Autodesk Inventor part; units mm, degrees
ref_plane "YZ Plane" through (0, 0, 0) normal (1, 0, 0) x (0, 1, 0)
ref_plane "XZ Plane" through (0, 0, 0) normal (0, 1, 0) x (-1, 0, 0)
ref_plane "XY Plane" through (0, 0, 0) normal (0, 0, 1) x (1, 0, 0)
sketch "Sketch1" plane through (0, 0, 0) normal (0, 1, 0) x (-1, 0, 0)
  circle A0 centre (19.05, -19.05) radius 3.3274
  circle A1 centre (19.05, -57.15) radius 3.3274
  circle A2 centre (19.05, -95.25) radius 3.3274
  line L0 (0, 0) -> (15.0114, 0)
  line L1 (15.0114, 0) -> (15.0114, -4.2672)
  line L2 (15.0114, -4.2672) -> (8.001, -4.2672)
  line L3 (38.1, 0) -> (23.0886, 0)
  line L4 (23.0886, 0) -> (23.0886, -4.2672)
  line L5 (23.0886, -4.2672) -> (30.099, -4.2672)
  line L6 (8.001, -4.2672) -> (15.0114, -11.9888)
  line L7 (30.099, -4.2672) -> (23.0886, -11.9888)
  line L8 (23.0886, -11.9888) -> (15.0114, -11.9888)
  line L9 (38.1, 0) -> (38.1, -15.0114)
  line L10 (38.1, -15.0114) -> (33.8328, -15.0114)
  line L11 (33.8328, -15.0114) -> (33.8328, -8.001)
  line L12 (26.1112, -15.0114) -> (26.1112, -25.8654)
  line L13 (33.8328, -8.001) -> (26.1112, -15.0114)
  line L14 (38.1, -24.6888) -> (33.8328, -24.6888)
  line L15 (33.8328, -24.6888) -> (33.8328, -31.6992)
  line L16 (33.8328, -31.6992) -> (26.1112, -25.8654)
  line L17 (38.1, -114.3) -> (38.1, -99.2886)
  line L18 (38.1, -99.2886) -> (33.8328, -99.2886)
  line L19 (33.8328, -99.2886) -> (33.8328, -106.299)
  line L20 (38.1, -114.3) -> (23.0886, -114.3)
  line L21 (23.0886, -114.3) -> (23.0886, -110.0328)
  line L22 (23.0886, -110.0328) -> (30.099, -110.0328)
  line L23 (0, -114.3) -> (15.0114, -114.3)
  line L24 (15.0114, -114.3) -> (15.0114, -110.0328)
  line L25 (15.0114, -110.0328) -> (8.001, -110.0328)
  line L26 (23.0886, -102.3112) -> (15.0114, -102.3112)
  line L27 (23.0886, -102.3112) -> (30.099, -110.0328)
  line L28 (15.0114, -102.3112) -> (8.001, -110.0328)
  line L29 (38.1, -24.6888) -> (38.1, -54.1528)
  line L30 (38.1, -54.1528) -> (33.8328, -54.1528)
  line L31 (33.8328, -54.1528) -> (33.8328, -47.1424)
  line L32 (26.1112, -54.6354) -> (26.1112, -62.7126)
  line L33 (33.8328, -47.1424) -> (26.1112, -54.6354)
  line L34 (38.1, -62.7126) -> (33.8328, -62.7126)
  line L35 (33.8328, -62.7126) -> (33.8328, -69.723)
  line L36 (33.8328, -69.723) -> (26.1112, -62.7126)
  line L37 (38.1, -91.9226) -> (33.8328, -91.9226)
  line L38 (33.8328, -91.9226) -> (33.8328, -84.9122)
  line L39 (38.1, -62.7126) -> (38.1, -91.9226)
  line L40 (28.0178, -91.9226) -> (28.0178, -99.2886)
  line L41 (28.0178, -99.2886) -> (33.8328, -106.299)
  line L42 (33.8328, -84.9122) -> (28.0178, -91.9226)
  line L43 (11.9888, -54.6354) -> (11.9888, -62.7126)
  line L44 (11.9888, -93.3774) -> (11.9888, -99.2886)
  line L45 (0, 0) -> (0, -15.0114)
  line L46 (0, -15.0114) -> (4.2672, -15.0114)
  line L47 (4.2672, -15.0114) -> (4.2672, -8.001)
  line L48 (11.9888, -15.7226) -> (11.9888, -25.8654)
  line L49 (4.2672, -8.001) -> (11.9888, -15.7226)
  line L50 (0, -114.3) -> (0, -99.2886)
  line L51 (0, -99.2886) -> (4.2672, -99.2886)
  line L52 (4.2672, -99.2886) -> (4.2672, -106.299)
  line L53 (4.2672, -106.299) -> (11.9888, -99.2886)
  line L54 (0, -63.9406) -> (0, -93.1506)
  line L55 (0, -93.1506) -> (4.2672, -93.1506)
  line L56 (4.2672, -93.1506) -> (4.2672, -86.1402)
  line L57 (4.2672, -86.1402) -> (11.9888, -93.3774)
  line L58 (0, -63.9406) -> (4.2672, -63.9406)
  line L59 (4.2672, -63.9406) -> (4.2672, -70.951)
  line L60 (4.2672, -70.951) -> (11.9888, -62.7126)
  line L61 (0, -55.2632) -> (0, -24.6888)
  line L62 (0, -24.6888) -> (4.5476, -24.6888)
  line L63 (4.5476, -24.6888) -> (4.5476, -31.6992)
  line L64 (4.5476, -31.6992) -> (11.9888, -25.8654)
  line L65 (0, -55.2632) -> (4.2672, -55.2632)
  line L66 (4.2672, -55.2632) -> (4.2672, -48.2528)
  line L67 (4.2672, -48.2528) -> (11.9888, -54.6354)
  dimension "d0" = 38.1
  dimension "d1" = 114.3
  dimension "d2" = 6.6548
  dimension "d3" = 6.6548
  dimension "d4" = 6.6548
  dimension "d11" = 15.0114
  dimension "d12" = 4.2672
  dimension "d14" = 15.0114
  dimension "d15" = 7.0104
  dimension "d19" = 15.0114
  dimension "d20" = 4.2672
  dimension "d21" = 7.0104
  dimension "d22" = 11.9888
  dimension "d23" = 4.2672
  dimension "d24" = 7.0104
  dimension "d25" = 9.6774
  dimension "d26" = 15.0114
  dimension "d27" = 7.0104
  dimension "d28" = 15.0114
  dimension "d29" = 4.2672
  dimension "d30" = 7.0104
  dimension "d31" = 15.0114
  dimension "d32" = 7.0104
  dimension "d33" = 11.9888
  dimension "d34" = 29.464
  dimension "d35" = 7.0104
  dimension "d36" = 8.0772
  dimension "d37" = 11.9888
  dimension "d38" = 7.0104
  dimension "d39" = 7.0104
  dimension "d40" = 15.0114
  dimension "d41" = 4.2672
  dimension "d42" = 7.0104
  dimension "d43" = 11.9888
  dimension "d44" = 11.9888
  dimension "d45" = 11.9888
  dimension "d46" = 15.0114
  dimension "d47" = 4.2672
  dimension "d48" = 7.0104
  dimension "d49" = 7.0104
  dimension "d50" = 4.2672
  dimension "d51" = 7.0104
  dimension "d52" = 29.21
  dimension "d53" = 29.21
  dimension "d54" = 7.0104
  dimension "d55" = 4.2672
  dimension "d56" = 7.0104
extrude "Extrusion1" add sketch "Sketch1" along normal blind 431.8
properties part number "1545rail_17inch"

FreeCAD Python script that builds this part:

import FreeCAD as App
import Part
import Sketcher
Q = App.Units.Quantity

doc = App.newDocument("Part")
body = doc.addObject("PartDesign::Body", "Body")

# Sketch on XZ plane
sketch1 = body.newObject("Sketcher::SketchObject", "Sketch")
sketch1.AttachmentSupport = (doc.getObject("XZ_Plane"), [""])
sketch1.MapMode = "FlatFace"
sketch1.addGeometry(Part.LineSegment(App.Vector(-15, 0, 0), App.Vector(0, 0, 0)), False)
sketch1.addGeometry(Part.LineSegment(App.Vector(0, 0, 0), App.Vector(0, -15, 0)), False)
sketch1.addGeometry(Part.LineSegment(App.Vector(0, -15, 0), App.Vector(-4.3, -15, 0)), False)
sketch1.addGeometry(Part.LineSegment(App.Vector(-4.3, -15, 0), App.Vector(-4.3, -8, 0)), False)
sketch1.addGeometry(Part.LineSegment(App.Vector(-4.3, -8, 0), App.Vector(-12, -15.7, 0)), False)
sketch1.addGeometry(Part.LineSegment(App.Vector(-12, -15.7, 0), App.Vector(-12, -25.9, 0)), False)
sketch1.addGeometry(Part.LineSegment(App.Vector(-12, -25.9, 0), App.Vector(-4.5, -31.7, 0)), False)
sketch1.addGeometry(Part.LineSegment(App.Vector(-4.5, -31.7, 0), App.Vector(-4.5, -24.7, 0)), False)
sketch1.addGeometry(Part.LineSegment(App.Vector(-4.5, -24.7, 0), App.Vector(0, -24.7, 0)), False)
sketch1.addGeometry(Part.LineSegment(App.Vector(0, -24.7, 0), App.Vector(0, -55.3, 0)), False)
sketch1.addGeometry(Part.LineSegment(App.Vector(0, -55.3, 0), App.Vector(-4.3, -55.3, 0)), False)
sketch1.addGeometry(Part.LineSegment(App.Vector(-4.3, -55.3, 0), App.Vector(-4.3, -48.3, 0)), False)
sketch1.addGeometry(Part.LineSegment(App.Vector(-4.3, -48.3, 0), App.Vector(-12, -54.6, 0)), False)
sketch1.addGeometry(Part.LineSegment(App.Vector(-12, -54.6, 0), App.Vector(-12, -62.7, 0)), False)
sketch1.addGeometry(Part.LineSegment(App.Vector(-12, -62.7, 0), App.Vector(-4.3, -71, 0)), False)
sketch1.addGeometry(Part.LineSegment(App.Vector(-4.3, -71, 0), App.Vector(-4.3, -63.9, 0)), False)
sketch1.addGeometry(Part.LineSegment(App.Vector(-4.3, -63.9, 0), App.Vector(0, -63.9, 0)), False)
sketch1.addGeometry(Part.LineSegment(App.Vector(0, -63.9, 0), App.Vector(0, -93.2, 0)), False)
sketch1.addGeometry(Part.LineSegment(App.Vector(0, -93.2, 0), App.Vector(-4.3, -93.2, 0)), False)
sketch1.addGeometry(Part.LineSegment(App.Vector(-4.3, -93.2, 0), App.Vector(-4.3, -86.1, 0)), False)
sketch1.addGeometry(Part.LineSegment(App.Vector(-4.3, -86.1, 0), App.Vector(-12, -93.4, 0)), False)
sketch1.addGeometry(Part.LineSegment(App.Vector(-12, -93.4, 0), App.Vector(-12, -99.3, 0)), False)
sketch1.addGeometry(Part.LineSegment(App.Vector(-12, -99.3, 0), App.Vector(-4.3, -106.3, 0)), False)
sketch1.addGeometry(Part.LineSegment(App.Vector(-4.3, -106.3, 0), App.Vector(-4.3, -99.3, 0)), False)
sketch1.addGeometry(Part.LineSegment(App.Vector(-4.3, -99.3, 0), App.Vector(0, -99.3, 0)), False)
sketch1.addGeometry(Part.LineSegment(App.Vector(0, -99.3, 0), App.Vector(0, -114.3, 0)), False)
sketch1.addGeometry(Part.LineSegment(App.Vector(0, -114.3, 0), App.Vector(-15, -114.3, 0)), False)
sketch1.addGeometry(Part.LineSegment(App.Vector(-15, -114.3, 0), App.Vector(-15, -110, 0)), False)
sketch1.addGeometry(Part.LineSegment(App.Vector(-15, -110, 0), App.Vector(-8, -110, 0)), False)
sketch1.addGeometry(Part.LineSegment(App.Vector(-8, -110, 0), App.Vector(-15, -102.3, 0)), False)
sketch1.addGeometry(Part.LineSegment(App.Vector(-15, -102.3, 0), App.Vector(-23.1, -102.3, 0)), False)
sketch1.addGeometry(Part.LineSegment(App.Vector(-23.1, -102.3, 0), App.Vector(-30.1, -110, 0)), False)
sketch1.addGeometry(Part.LineSegment(App.Vector(-30.1, -110, 0), App.Vector(-23.1, -110, 0)), False)
sketch1.addGeometry(Part.LineSegment(App.Vector(-23.1, -110, 0), App.Vector(-23.1, -114.3, 0)), False)
sketch1.addGeometry(Part.LineSegment(App.Vector(-23.1, -114.3, 0), App.Vector(-38.1, -114.3, 0)), False)
sketch1.addGeometry(Part.LineSegment(App.Vector(-38.1, -114.3, 0), App.Vector(-38.1, -99.3, 0)), False)
sketch1.addGeometry(Part.LineSegment(App.Vector(-38.1, -99.3, 0), App.Vector(-33.8, -99.3, 0)), False)
sketch1.addGeometry(Part.LineSegment(App.Vector(-33.8, -99.3, 0), App.Vector(-33.8, -106.3, 0)), False)
sketch1.addGeometry(Part.LineSegment(App.Vector(-33.8, -106.3, 0), App.Vector(-28, -99.3, 0)), False)
sketch1.addGeometry(Part.LineSegment(App.Vector(-28, -99.3, 0), App.Vector(-28, -91.9, 0)), False)
sketch1.addGeometry(Part.LineSegment(App.Vector(-28, -91.9, 0), App.Vector(-33.8, -84.9, 0)), False)
sketch1.addGeometry(Part.LineSegment(App.Vector(-33.8, -84.9, 0), App.Vector(-33.8, -91.9, 0)), False)
sketch1.addGeometry(Part.LineSegment(App.Vector(-33.8, -91.9, 0), App.Vector(-38.1, -91.9, 0)), False)
sketch1.addGeometry(Part.LineSegment(App.Vector(-38.1, -91.9, 0), App.Vector(-38.1, -62.7, 0)), False)
sketch1.addGeometry(Part.LineSegment(App.Vector(-38.1, -62.7, 0), App.Vector(-33.8, -62.7, 0)), False)
sketch1.addGeometry(Part.LineSegment(App.Vector(-33.8, -62.7, 0), App.Vector(-33.8, -69.7, 0)), False)
sketch1.addGeometry(Part.LineSegment(App.Vector(-33.8, -69.7, 0), App.Vector(-26.1, -62.7, 0)), False)
sketch1.addGeometry(Part.LineSegment(App.Vector(-26.1, -62.7, 0), App.Vector(-26.1, -54.6, 0)), False)
sketch1.addGeometry(Part.LineSegment(App.Vector(-26.1, -54.6, 0), App.Vector(-33.8, -47.1, 0)), False)
sketch1.addGeometry(Part.LineSegment(App.Vector(-33.8, -47.1, 0), App.Vector(-33.8, -54.2, 0)), False)
sketch1.addGeometry(Part.LineSegment(App.Vector(-33.8, -54.2, 0), App.Vector(-38.1, -54.2, 0)), False)
sketch1.addGeometry(Part.LineSegment(App.Vector(-38.1, -54.2, 0), App.Vector(-38.1, -24.7, 0)), False)
sketch1.addGeometry(Part.LineSegment(App.Vector(-38.1, -24.7, 0), App.Vector(-33.8, -24.7, 0)), False)
sketch1.addGeometry(Part.LineSegment(App.Vector(-33.8, -24.7, 0), App.Vector(-33.8, -31.7, 0)), False)
sketch1.addGeometry(Part.LineSegment(App.Vector(-33.8, -31.7, 0), App.Vector(-26.1, -25.9, 0)), False)
sketch1.addGeometry(Part.LineSegment(App.Vector(-26.1, -25.9, 0), App.Vector(-26.1, -15, 0)), False)
sketch1.addGeometry(Part.LineSegment(App.Vector(-26.1, -15, 0), App.Vector(-33.8, -8, 0)), False)
sketch1.addGeometry(Part.LineSegment(App.Vector(-33.8, -8, 0), App.Vector(-33.8, -15, 0)), False)
sketch1.addGeometry(Part.LineSegment(App.Vector(-33.8, -15, 0), App.Vector(-38.1, -15, 0)), False)
sketch1.addGeometry(Part.LineSegment(App.Vector(-38.1, -15, 0), App.Vector(-38.1, 0, 0)), False)
sketch1.addGeometry(Part.LineSegment(App.Vector(-38.1, 0, 0), App.Vector(-23.1, 0, 0)), False)
sketch1.addGeometry(Part.LineSegment(App.Vector(-23.1, 0, 0), App.Vector(-23.1, -4.3, 0)), False)
sketch1.addGeometry(Part.LineSegment(App.Vector(-23.1, -4.3, 0), App.Vector(-30.1, -4.3, 0)), False)
sketch1.addGeometry(Part.LineSegment(App.Vector(-30.1, -4.3, 0), App.Vector(-23.1, -12, 0)), False)
sketch1.addGeometry(Part.LineSegment(App.Vector(-23.1, -12, 0), App.Vector(-15, -12, 0)), False)
sketch1.addGeometry(Part.LineSegment(App.Vector(-15, -12, 0), App.Vector(-8, -4.3, 0)), False)
sketch1.addGeometry(Part.LineSegment(App.Vector(-8, -4.3, 0), App.Vector(-15, -4.3, 0)), False)
sketch1.addGeometry(Part.LineSegment(App.Vector(-15, -4.3, 0), App.Vector(-15, 0, 0)), False)
sketch1.addGeometry(Part.Circle(App.Vector(-19.1, -95.2, 0), App.Vector(0, 0, 1), 3.3), False)
sketch1.addGeometry(Part.Circle(App.Vector(-19.1, -57.1, 0), App.Vector(0, 0, 1), 3.3), False)
sketch1.addGeometry(Part.Circle(App.Vector(-19.1, -19.1, 0), App.Vector(0, 0, 1), 3.3), False)
sketch1.addConstraint(Sketcher.Constraint("Coincident", 0, 2, 1, 1))
sketch1.addConstraint(Sketcher.Constraint("Coincident", 1, 2, 2, 1))
sketch1.addConstraint(Sketcher.Constraint("Coincident", 2, 2, 3, 1))
sketch1.addConstraint(Sketcher.Constraint("Coincident", 3, 2, 4, 1))
sketch1.addConstraint(Sketcher.Constraint("Coincident", 4, 2, 5, 1))
sketch1.addConstraint(Sketcher.Constraint("Coincident", 5, 2, 6, 1))
sketch1.addConstraint(Sketcher.Constraint("Coincident", 6, 2, 7, 1))
sketch1.addConstraint(Sketcher.Constraint("Coincident", 7, 2, 8, 1))
sketch1.addConstraint(Sketcher.Constraint("Coincident", 8, 2, 9, 1))
sketch1.addConstraint(Sketcher.Constraint("Coincident", 9, 2, 10, 1))
sketch1.addConstraint(Sketcher.Constraint("Coincident", 10, 2, 11, 1))
sketch1.addConstraint(Sketcher.Constraint("Coincident", 11, 2, 12, 1))
sketch1.addConstraint(Sketcher.Constraint("Coincident", 12, 2, 13, 1))
sketch1.addConstraint(Sketcher.Constraint("Coincident", 13, 2, 14, 1))
sketch1.addConstraint(Sketcher.Constraint("Coincident", 14, 2, 15, 1))
sketch1.addConstraint(Sketcher.Constraint("Coincident", 15, 2, 16, 1))
sketch1.addConstraint(Sketcher.Constraint("Coincident", 16, 2, 17, 1))
sketch1.addConstraint(Sketcher.Constraint("Coincident", 17, 2, 18, 1))
sketch1.addConstraint(Sketcher.Constraint("Coincident", 18, 2, 19, 1))
sketch1.addConstraint(Sketcher.Constraint("Coincident", 19, 2, 20, 1))
sketch1.addConstraint(Sketcher.Constraint("Coincident", 20, 2, 21, 1))
sketch1.addConstraint(Sketcher.Constraint("Coincident", 21, 2, 22, 1))
sketch1.addConstraint(Sketcher.Constraint("Coincident", 22, 2, 23, 1))
sketch1.addConstraint(Sketcher.Constraint("Coincident", 23, 2, 24, 1))
sketch1.addConstraint(Sketcher.Constraint("Coincident", 24, 2, 25, 1))
sketch1.addConstraint(Sketcher.Constraint("Coincident", 25, 2, 26, 1))
sketch1.addConstraint(Sketcher.Constraint("Coincident", 26, 2, 27, 1))
sketch1.addConstraint(Sketcher.Constraint("Coincident", 27, 2, 28, 1))
sketch1.addConstraint(Sketcher.Constraint("Coincident", 28, 2, 29, 1))
sketch1.addConstraint(Sketcher.Constraint("Coincident", 29, 2, 30, 1))
sketch1.addConstraint(Sketcher.Constraint("Coincident", 30, 2, 31, 1))
sketch1.addConstraint(Sketcher.Constraint("Coincident", 31, 2, 32, 1))
sketch1.addConstraint(Sketcher.Constraint("Coincident", 32, 2, 33, 1))
sketch1.addConstraint(Sketcher.Constraint("Coincident", 33, 2, 34, 1))
sketch1.addConstraint(Sketcher.Constraint("Coincident", 34, 2, 35, 1))
sketch1.addConstraint(Sketcher.Constraint("Coincident", 35, 2, 36, 1))
sketch1.addConstraint(Sketcher.Constraint("Coincident", 36, 2, 37, 1))
sketch1.addConstraint(Sketcher.Constraint("Coincident", 37, 2, 38, 1))
sketch1.addConstraint(Sketcher.Constraint("Coincident", 38, 2, 39, 1))
sketch1.addConstraint(Sketcher.Constraint("Coincident", 39, 2, 40, 1))
sketch1.addConstraint(Sketcher.Constraint("Coincident", 40, 2, 41, 1))
sketch1.addConstraint(Sketcher.Constraint("Coincident", 41, 2, 42, 1))
sketch1.addConstraint(Sketcher.Constraint("Coincident", 42, 2, 43, 1))
sketch1.addConstraint(Sketcher.Constraint("Coincident", 43, 2, 44, 1))
sketch1.addConstraint(Sketcher.Constraint("Coincident", 44, 2, 45, 1))
sketch1.addConstraint(Sketcher.Constraint("Coincident", 45, 2, 46, 1))
sketch1.addConstraint(Sketcher.Constraint("Coincident", 46, 2, 47, 1))
sketch1.addConstraint(Sketcher.Constraint("Coincident", 47, 2, 48, 1))
sketch1.addConstraint(Sketcher.Constraint("Coincident", 48, 2, 49, 1))
sketch1.addConstraint(Sketcher.Constraint("Coincident", 49, 2, 50, 1))
sketch1.addConstraint(Sketcher.Constraint("Coincident", 50, 2, 51, 1))
sketch1.addConstraint(Sketcher.Constraint("Coincident", 51, 2, 52, 1))
sketch1.addConstraint(Sketcher.Constraint("Coincident", 52, 2, 53, 1))
sketch1.addConstraint(Sketcher.Constraint("Coincident", 53, 2, 54, 1))
sketch1.addConstraint(Sketcher.Constraint("Coincident", 54, 2, 55, 1))
sketch1.addConstraint(Sketcher.Constraint("Coincident", 55, 2, 56, 1))
sketch1.addConstraint(Sketcher.Constraint("Coincident", 56, 2, 57, 1))
sketch1.addConstraint(Sketcher.Constraint("Coincident", 57, 2, 58, 1))
sketch1.addConstraint(Sketcher.Constraint("Coincident", 58, 2, 59, 1))
sketch1.addConstraint(Sketcher.Constraint("Coincident", 59, 2, 60, 1))
sketch1.addConstraint(Sketcher.Constraint("Coincident", 60, 2, 61, 1))
sketch1.addConstraint(Sketcher.Constraint("Coincident", 61, 2, 62, 1))
sketch1.addConstraint(Sketcher.Constraint("Coincident", 62, 2, 63, 1))
sketch1.addConstraint(Sketcher.Constraint("Coincident", 63, 2, 64, 1))
sketch1.addConstraint(Sketcher.Constraint("Coincident", 64, 2, 65, 1))
sketch1.addConstraint(Sketcher.Constraint("Coincident", 65, 2, 66, 1))
sketch1.addConstraint(Sketcher.Constraint("Coincident", 66, 2, 67, 1))
sketch1.addConstraint(Sketcher.Constraint("Coincident", 67, 2, 0, 1))
sketch1.addConstraint(Sketcher.Constraint("Horizontal", 0))
sketch1.addConstraint(Sketcher.Constraint("Vertical", 1))
sketch1.addConstraint(Sketcher.Constraint("Horizontal", 2))
sketch1.addConstraint(Sketcher.Constraint("Vertical", 3))
sketch1.addConstraint(Sketcher.Constraint("Vertical", 5))
sketch1.addConstraint(Sketcher.Constraint("Vertical", 7))
sketch1.addConstraint(Sketcher.Constraint("Horizontal", 8))
sketch1.addConstraint(Sketcher.Constraint("Vertical", 9))
sketch1.addConstraint(Sketcher.Constraint("Horizontal", 10))
sketch1.addConstraint(Sketcher.Constraint("Vertical", 11))
sketch1.addConstraint(Sketcher.Constraint("Vertical", 13))
sketch1.addConstraint(Sketcher.Constraint("Vertical", 15))
sketch1.addConstraint(Sketcher.Constraint("Horizontal", 16))
sketch1.addConstraint(Sketcher.Constraint("Vertical", 17))
sketch1.addConstraint(Sketcher.Constraint("Horizontal", 18))
sketch1.addConstraint(Sketcher.Constraint("Vertical", 19))
sketch1.addConstraint(Sketcher.Constraint("Vertical", 21))
sketch1.addConstraint(Sketcher.Constraint("Vertical", 23))
sketch1.addConstraint(Sketcher.Constraint("Horizontal", 24))
sketch1.addConstraint(Sketcher.Constraint("Vertical", 25))
sketch1.addConstraint(Sketcher.Constraint("Horizontal", 26))
sketch1.addConstraint(Sketcher.Constraint("Vertical", 27))
sketch1.addConstraint(Sketcher.Constraint("Horizontal", 28))
sketch1.addConstraint(Sketcher.Constraint("Horizontal", 30))
sketch1.addConstraint(Sketcher.Constraint("Horizontal", 32))
sketch1.addConstraint(Sketcher.Constraint("Vertical", 33))
sketch1.addConstraint(Sketcher.Constraint("Horizontal", 34))
sketch1.addConstraint(Sketcher.Constraint("Vertical", 35))
sketch1.addConstraint(Sketcher.Constraint("Horizontal", 36))
sketch1.addConstraint(Sketcher.Constraint("Vertical", 37))
sketch1.addConstraint(Sketcher.Constraint("Vertical", 39))
sketch1.addConstraint(Sketcher.Constraint("Vertical", 41))
sketch1.addConstraint(Sketcher.Constraint("Horizontal", 42))
sketch1.addConstraint(Sketcher.Constraint("Vertical", 43))
sketch1.addConstraint(Sketcher.Constraint("Horizontal", 44))
sketch1.addConstraint(Sketcher.Constraint("Vertical", 45))
sketch1.addConstraint(Sketcher.Constraint("Vertical", 47))
sketch1.addConstraint(Sketcher.Constraint("Vertical", 49))
sketch1.addConstraint(Sketcher.Constraint("Horizontal", 50))
sketch1.addConstraint(Sketcher.Constraint("Vertical", 51))
sketch1.addConstraint(Sketcher.Constraint("Horizontal", 52))
sketch1.addConstraint(Sketcher.Constraint("Vertical", 53))
sketch1.addConstraint(Sketcher.Constraint("Vertical", 55))
sketch1.addConstraint(Sketcher.Constraint("Vertical", 57))
sketch1.addConstraint(Sketcher.Constraint("Horizontal", 58))
sketch1.addConstraint(Sketcher.Constraint("Vertical", 59))
sketch1.addConstraint(Sketcher.Constraint("Horizontal", 60))
sketch1.addConstraint(Sketcher.Constraint("Vertical", 61))
sketch1.addConstraint(Sketcher.Constraint("Horizontal", 62))
sketch1.addConstraint(Sketcher.Constraint("Horizontal", 64))
sketch1.addConstraint(Sketcher.Constraint("Horizontal", 66))
sketch1.addConstraint(Sketcher.Constraint("Vertical", 67))
sketch1.addConstraint(Sketcher.Constraint("Coincident", 0, 2, -1, 1))
sketch1.addConstraint(Sketcher.Constraint("Equal", 68, 69))
sketch1.addConstraint(Sketcher.Constraint("Equal", 69, 70))
sketch1.addConstraint(Sketcher.Constraint("PointOnObject", 8, 2, -2))
sketch1.addConstraint(Sketcher.Constraint("PointOnObject", 16, 2, -2))
sketch1.addConstraint(Sketcher.Constraint("PointOnObject", 24, 2, -2))
sketch1.addConstraint(Sketcher.Constraint("PointOnObject", 59, 2, -1))
sketch1.addConstraint(Sketcher.Constraint("Perpendicular", 14, 20))
sketch1.addConstraint(Sketcher.Constraint("Perpendicular", 22, 31))
sketch1.addConstraint(Sketcher.Constraint("Perpendicular", 29, 46))
sketch1.addConstraint(Sketcher.Constraint("Perpendicular", 31, 56))
sketch1.addConstraint(Sketcher.Constraint("Perpendicular", 46, 63))
sketch1.addConstraint(Sketcher.Constraint("Perpendicular", 56, 65))
sketch1.addConstraint(Sketcher.Constraint("Horizontal", 21, 2, 23, 2))
sketch1.addConstraint(Sketcher.Constraint("Horizontal", 28, 2, 31, 2))
sketch1.addConstraint(Sketcher.Constraint("Horizontal", 26, 2, 33, 2))
sketch1.addConstraint(Sketcher.Constraint("Horizontal", 24, 2, 35, 2))
sketch1.addConstraint(Sketcher.Constraint("Horizontal", 22, 2, 37, 2))
sketch1.addConstraint(Sketcher.Constraint("Horizontal", 36, 2, 38, 2))
sketch1.addConstraint(Sketcher.Constraint("Horizontal", 39, 2, 41, 2))
sketch1.addConstraint(Sketcher.Constraint("Horizontal", 13, 2, 43, 2))
sketch1.addConstraint(Sketcher.Constraint("Horizontal", 44, 2, 46, 2))
sketch1.addConstraint(Sketcher.Constraint("Horizontal", 12, 2, 47, 2))
sketch1.addConstraint(Sketcher.Constraint("Horizontal", 8, 2, 51, 2))
sketch1.addConstraint(Sketcher.Constraint("Horizontal", 6, 2, 53, 2))
sketch1.addConstraint(Sketcher.Constraint("Horizontal", 5, 2, 54, 2))
sketch1.addConstraint(Sketcher.Constraint("Horizontal", 2, 2, 55, 2))
sketch1.addConstraint(Sketcher.Constraint("Horizontal", 3, 2, 56, 2))
sketch1.addConstraint(Sketcher.Constraint("Horizontal", 55, 2, 57, 2))
sketch1.addConstraint(Sketcher.Constraint("Horizontal", 62, 2, 65, 2))
sketch1.addConstraint(Sketcher.Constraint("Vertical", 68, 3, 69, 3))
sketch1.addConstraint(Sketcher.Constraint("Vertical", 69, 3, 70, 3))
sketch1.addConstraint(Sketcher.Constraint("Vertical", 3, 2, 10, 2))
sketch1.addConstraint(Sketcher.Constraint("Vertical", 5, 2, 12, 2))
sketch1.addConstraint(Sketcher.Constraint("Vertical", 11, 2, 14, 2))
sketch1.addConstraint(Sketcher.Constraint("Vertical", 15, 2, 18, 2))
sketch1.addConstraint(Sketcher.Constraint("Vertical", 13, 2, 20, 2))
sketch1.addConstraint(Sketcher.Constraint("Vertical", 19, 2, 22, 2))
sketch1.addConstraint(Sketcher.Constraint("Vertical", 27, 2, 29, 2))
sketch1.addConstraint(Sketcher.Constraint("Vertical", 30, 2, 32, 2))
sketch1.addConstraint(Sketcher.Constraint("Vertical", 37, 2, 40, 2))
sketch1.addConstraint(Sketcher.Constraint("Vertical", 35, 2, 42, 2))
sketch1.addConstraint(Sketcher.Constraint("Vertical", 41, 2, 44, 2))
sketch1.addConstraint(Sketcher.Constraint("Vertical", 45, 2, 48, 2))
sketch1.addConstraint(Sketcher.Constraint("Vertical", 43, 2, 50, 2))
sketch1.addConstraint(Sketcher.Constraint("Vertical", 49, 2, 52, 2))
sketch1.addConstraint(Sketcher.Constraint("Vertical", 47, 2, 54, 2))
sketch1.addConstraint(Sketcher.Constraint("Vertical", 53, 2, 56, 2))
sketch1.addConstraint(Sketcher.Constraint("Vertical", 51, 2, 58, 2))
sketch1.addConstraint(Sketcher.Constraint("Vertical", 33, 2, 60, 2))
sketch1.addConstraint(Sketcher.Constraint("Vertical", 31, 2, 62, 2))
sketch1.addConstraint(Sketcher.Constraint("Vertical", 61, 2, 63, 2))
sketch1.addConstraint(Sketcher.Constraint("Vertical", 29, 2, 64, 2))
sketch1.addConstraint(Sketcher.Constraint("Vertical", 28, 2, 65, 2))
sketch1.addConstraint(Sketcher.Constraint("Vertical", 64, 2, 66, 2))
sketch1.addConstraint(Sketcher.Constraint("Equal", 26, 34))
sketch1.addConstraint(Sketcher.Constraint("Equal", 24, 36))
sketch1.addConstraint(Sketcher.Constraint("Equal", 60, 1))
sketch1.addConstraint(Sketcher.Constraint("Equal", 66, 3))
sketch1.addConstraint(Sketcher.Constraint("Equal", 3, 7))
sketch1.addConstraint(Sketcher.Constraint("Equal", 7, 11))
sketch1.addConstraint(Sketcher.Constraint("Equal", 64, 13))
sketch1.addConstraint(Sketcher.Constraint("Equal", 11, 15))
sketch1.addConstraint(Sketcher.Constraint("Equal", 15, 19))
sketch1.addConstraint(Sketcher.Constraint("Equal", 19, 23))
sketch1.addConstraint(Sketcher.Constraint("Equal", 1, 25))
sketch1.addConstraint(Sketcher.Constraint("Equal", 58, 27))
sketch1.addConstraint(Sketcher.Constraint("Equal", 37, 41))
sketch1.addConstraint(Sketcher.Constraint("Equal", 17, 43))
sketch1.addConstraint(Sketcher.Constraint("Equal", 45, 49))
sketch1.addConstraint(Sketcher.Constraint("Equal", 33, 61))
sketch1.addConstraint(Sketcher.Constraint("Diameter", 68, Q("0.262 in")))
sketch1.addConstraint(Sketcher.Constraint("DistanceY", 17, 2, 17, 1, Q("1.15 in")))
sketch1.addConstraint(Sketcher.Constraint("DistanceY", 51, 1, 51, 2, Q("1.16 in")))
sketch1.addConstraint(Sketcher.Constraint("DistanceY", 25, 2, -1, 1, Q("4.5 in")))
sketch1.addConstraint(Sketcher.Constraint("DistanceX", 34, 2, -1, 1, Q("1.5 in")))
sketch1.addConstraint(Sketcher.Constraint("DistanceX", 0, 1, 0, 2, Q("0.591 in")))
sketch1.addConstraint(Sketcher.Constraint("DistanceX", 2, 2, 2, 1, Q("0.168 in")))
sketch1.addConstraint(Sketcher.Constraint("DistanceX", 28, 1, 28, 2, Q("0.276 in")))
sketch1.addConstraint(Sketcher.Constraint("Distance", 54, Q("0.381 in")))
sketch1.addConstraint(Sketcher.Constraint("DistanceX", 4, 2, -1, 1, Q("0.472 in")))
sketch1.addConstraint(Sketcher.Constraint("Angle", 4, Q("-135 deg")))
sketch1.addConstraint(Sketcher.Constraint("DistanceY", 39, 1, 39, 2, Q("0.29 in")))
sketch1.addConstraint(Sketcher.Constraint("DistanceX", 68, 3, -1, 1, Q("0.75 in")))
sketch1.addConstraint(Sketcher.Constraint("DistanceY", 68, 3, -1, 1, Q("3.75 in")))
sketch1.addConstraint(Sketcher.Constraint("DistanceY", 69, 3, -1, 1, Q("2.25 in")))
sketch1.addConstraint(Sketcher.Constraint("DistanceY", 70, 3, -1, 1, Q("0.75 in")))
sketch1.addConstraint(Sketcher.Constraint("Angle", 48, Q("135.8608 deg")))
sketch1.addConstraint(Sketcher.Constraint("Distance", 12, Q("0.3944 in")))
sketch1.addConstraint(Sketcher.Constraint("Distance", 38, Q("0.3586 in")))
sketch1.addConstraint(Sketcher.Constraint("DistanceX", 8, 1, 8, 2, 4.5476))
sketch1.addConstraint(Sketcher.Constraint("DistanceY", 21, 2, 21, 1, 5.9112))
pad1 = body.newObject("PartDesign::Pad", "Pad")
pad1.Profile = sketch1
pad1.Length = Q("17 in")
pad1.Reversed = True

doc.recompute()
